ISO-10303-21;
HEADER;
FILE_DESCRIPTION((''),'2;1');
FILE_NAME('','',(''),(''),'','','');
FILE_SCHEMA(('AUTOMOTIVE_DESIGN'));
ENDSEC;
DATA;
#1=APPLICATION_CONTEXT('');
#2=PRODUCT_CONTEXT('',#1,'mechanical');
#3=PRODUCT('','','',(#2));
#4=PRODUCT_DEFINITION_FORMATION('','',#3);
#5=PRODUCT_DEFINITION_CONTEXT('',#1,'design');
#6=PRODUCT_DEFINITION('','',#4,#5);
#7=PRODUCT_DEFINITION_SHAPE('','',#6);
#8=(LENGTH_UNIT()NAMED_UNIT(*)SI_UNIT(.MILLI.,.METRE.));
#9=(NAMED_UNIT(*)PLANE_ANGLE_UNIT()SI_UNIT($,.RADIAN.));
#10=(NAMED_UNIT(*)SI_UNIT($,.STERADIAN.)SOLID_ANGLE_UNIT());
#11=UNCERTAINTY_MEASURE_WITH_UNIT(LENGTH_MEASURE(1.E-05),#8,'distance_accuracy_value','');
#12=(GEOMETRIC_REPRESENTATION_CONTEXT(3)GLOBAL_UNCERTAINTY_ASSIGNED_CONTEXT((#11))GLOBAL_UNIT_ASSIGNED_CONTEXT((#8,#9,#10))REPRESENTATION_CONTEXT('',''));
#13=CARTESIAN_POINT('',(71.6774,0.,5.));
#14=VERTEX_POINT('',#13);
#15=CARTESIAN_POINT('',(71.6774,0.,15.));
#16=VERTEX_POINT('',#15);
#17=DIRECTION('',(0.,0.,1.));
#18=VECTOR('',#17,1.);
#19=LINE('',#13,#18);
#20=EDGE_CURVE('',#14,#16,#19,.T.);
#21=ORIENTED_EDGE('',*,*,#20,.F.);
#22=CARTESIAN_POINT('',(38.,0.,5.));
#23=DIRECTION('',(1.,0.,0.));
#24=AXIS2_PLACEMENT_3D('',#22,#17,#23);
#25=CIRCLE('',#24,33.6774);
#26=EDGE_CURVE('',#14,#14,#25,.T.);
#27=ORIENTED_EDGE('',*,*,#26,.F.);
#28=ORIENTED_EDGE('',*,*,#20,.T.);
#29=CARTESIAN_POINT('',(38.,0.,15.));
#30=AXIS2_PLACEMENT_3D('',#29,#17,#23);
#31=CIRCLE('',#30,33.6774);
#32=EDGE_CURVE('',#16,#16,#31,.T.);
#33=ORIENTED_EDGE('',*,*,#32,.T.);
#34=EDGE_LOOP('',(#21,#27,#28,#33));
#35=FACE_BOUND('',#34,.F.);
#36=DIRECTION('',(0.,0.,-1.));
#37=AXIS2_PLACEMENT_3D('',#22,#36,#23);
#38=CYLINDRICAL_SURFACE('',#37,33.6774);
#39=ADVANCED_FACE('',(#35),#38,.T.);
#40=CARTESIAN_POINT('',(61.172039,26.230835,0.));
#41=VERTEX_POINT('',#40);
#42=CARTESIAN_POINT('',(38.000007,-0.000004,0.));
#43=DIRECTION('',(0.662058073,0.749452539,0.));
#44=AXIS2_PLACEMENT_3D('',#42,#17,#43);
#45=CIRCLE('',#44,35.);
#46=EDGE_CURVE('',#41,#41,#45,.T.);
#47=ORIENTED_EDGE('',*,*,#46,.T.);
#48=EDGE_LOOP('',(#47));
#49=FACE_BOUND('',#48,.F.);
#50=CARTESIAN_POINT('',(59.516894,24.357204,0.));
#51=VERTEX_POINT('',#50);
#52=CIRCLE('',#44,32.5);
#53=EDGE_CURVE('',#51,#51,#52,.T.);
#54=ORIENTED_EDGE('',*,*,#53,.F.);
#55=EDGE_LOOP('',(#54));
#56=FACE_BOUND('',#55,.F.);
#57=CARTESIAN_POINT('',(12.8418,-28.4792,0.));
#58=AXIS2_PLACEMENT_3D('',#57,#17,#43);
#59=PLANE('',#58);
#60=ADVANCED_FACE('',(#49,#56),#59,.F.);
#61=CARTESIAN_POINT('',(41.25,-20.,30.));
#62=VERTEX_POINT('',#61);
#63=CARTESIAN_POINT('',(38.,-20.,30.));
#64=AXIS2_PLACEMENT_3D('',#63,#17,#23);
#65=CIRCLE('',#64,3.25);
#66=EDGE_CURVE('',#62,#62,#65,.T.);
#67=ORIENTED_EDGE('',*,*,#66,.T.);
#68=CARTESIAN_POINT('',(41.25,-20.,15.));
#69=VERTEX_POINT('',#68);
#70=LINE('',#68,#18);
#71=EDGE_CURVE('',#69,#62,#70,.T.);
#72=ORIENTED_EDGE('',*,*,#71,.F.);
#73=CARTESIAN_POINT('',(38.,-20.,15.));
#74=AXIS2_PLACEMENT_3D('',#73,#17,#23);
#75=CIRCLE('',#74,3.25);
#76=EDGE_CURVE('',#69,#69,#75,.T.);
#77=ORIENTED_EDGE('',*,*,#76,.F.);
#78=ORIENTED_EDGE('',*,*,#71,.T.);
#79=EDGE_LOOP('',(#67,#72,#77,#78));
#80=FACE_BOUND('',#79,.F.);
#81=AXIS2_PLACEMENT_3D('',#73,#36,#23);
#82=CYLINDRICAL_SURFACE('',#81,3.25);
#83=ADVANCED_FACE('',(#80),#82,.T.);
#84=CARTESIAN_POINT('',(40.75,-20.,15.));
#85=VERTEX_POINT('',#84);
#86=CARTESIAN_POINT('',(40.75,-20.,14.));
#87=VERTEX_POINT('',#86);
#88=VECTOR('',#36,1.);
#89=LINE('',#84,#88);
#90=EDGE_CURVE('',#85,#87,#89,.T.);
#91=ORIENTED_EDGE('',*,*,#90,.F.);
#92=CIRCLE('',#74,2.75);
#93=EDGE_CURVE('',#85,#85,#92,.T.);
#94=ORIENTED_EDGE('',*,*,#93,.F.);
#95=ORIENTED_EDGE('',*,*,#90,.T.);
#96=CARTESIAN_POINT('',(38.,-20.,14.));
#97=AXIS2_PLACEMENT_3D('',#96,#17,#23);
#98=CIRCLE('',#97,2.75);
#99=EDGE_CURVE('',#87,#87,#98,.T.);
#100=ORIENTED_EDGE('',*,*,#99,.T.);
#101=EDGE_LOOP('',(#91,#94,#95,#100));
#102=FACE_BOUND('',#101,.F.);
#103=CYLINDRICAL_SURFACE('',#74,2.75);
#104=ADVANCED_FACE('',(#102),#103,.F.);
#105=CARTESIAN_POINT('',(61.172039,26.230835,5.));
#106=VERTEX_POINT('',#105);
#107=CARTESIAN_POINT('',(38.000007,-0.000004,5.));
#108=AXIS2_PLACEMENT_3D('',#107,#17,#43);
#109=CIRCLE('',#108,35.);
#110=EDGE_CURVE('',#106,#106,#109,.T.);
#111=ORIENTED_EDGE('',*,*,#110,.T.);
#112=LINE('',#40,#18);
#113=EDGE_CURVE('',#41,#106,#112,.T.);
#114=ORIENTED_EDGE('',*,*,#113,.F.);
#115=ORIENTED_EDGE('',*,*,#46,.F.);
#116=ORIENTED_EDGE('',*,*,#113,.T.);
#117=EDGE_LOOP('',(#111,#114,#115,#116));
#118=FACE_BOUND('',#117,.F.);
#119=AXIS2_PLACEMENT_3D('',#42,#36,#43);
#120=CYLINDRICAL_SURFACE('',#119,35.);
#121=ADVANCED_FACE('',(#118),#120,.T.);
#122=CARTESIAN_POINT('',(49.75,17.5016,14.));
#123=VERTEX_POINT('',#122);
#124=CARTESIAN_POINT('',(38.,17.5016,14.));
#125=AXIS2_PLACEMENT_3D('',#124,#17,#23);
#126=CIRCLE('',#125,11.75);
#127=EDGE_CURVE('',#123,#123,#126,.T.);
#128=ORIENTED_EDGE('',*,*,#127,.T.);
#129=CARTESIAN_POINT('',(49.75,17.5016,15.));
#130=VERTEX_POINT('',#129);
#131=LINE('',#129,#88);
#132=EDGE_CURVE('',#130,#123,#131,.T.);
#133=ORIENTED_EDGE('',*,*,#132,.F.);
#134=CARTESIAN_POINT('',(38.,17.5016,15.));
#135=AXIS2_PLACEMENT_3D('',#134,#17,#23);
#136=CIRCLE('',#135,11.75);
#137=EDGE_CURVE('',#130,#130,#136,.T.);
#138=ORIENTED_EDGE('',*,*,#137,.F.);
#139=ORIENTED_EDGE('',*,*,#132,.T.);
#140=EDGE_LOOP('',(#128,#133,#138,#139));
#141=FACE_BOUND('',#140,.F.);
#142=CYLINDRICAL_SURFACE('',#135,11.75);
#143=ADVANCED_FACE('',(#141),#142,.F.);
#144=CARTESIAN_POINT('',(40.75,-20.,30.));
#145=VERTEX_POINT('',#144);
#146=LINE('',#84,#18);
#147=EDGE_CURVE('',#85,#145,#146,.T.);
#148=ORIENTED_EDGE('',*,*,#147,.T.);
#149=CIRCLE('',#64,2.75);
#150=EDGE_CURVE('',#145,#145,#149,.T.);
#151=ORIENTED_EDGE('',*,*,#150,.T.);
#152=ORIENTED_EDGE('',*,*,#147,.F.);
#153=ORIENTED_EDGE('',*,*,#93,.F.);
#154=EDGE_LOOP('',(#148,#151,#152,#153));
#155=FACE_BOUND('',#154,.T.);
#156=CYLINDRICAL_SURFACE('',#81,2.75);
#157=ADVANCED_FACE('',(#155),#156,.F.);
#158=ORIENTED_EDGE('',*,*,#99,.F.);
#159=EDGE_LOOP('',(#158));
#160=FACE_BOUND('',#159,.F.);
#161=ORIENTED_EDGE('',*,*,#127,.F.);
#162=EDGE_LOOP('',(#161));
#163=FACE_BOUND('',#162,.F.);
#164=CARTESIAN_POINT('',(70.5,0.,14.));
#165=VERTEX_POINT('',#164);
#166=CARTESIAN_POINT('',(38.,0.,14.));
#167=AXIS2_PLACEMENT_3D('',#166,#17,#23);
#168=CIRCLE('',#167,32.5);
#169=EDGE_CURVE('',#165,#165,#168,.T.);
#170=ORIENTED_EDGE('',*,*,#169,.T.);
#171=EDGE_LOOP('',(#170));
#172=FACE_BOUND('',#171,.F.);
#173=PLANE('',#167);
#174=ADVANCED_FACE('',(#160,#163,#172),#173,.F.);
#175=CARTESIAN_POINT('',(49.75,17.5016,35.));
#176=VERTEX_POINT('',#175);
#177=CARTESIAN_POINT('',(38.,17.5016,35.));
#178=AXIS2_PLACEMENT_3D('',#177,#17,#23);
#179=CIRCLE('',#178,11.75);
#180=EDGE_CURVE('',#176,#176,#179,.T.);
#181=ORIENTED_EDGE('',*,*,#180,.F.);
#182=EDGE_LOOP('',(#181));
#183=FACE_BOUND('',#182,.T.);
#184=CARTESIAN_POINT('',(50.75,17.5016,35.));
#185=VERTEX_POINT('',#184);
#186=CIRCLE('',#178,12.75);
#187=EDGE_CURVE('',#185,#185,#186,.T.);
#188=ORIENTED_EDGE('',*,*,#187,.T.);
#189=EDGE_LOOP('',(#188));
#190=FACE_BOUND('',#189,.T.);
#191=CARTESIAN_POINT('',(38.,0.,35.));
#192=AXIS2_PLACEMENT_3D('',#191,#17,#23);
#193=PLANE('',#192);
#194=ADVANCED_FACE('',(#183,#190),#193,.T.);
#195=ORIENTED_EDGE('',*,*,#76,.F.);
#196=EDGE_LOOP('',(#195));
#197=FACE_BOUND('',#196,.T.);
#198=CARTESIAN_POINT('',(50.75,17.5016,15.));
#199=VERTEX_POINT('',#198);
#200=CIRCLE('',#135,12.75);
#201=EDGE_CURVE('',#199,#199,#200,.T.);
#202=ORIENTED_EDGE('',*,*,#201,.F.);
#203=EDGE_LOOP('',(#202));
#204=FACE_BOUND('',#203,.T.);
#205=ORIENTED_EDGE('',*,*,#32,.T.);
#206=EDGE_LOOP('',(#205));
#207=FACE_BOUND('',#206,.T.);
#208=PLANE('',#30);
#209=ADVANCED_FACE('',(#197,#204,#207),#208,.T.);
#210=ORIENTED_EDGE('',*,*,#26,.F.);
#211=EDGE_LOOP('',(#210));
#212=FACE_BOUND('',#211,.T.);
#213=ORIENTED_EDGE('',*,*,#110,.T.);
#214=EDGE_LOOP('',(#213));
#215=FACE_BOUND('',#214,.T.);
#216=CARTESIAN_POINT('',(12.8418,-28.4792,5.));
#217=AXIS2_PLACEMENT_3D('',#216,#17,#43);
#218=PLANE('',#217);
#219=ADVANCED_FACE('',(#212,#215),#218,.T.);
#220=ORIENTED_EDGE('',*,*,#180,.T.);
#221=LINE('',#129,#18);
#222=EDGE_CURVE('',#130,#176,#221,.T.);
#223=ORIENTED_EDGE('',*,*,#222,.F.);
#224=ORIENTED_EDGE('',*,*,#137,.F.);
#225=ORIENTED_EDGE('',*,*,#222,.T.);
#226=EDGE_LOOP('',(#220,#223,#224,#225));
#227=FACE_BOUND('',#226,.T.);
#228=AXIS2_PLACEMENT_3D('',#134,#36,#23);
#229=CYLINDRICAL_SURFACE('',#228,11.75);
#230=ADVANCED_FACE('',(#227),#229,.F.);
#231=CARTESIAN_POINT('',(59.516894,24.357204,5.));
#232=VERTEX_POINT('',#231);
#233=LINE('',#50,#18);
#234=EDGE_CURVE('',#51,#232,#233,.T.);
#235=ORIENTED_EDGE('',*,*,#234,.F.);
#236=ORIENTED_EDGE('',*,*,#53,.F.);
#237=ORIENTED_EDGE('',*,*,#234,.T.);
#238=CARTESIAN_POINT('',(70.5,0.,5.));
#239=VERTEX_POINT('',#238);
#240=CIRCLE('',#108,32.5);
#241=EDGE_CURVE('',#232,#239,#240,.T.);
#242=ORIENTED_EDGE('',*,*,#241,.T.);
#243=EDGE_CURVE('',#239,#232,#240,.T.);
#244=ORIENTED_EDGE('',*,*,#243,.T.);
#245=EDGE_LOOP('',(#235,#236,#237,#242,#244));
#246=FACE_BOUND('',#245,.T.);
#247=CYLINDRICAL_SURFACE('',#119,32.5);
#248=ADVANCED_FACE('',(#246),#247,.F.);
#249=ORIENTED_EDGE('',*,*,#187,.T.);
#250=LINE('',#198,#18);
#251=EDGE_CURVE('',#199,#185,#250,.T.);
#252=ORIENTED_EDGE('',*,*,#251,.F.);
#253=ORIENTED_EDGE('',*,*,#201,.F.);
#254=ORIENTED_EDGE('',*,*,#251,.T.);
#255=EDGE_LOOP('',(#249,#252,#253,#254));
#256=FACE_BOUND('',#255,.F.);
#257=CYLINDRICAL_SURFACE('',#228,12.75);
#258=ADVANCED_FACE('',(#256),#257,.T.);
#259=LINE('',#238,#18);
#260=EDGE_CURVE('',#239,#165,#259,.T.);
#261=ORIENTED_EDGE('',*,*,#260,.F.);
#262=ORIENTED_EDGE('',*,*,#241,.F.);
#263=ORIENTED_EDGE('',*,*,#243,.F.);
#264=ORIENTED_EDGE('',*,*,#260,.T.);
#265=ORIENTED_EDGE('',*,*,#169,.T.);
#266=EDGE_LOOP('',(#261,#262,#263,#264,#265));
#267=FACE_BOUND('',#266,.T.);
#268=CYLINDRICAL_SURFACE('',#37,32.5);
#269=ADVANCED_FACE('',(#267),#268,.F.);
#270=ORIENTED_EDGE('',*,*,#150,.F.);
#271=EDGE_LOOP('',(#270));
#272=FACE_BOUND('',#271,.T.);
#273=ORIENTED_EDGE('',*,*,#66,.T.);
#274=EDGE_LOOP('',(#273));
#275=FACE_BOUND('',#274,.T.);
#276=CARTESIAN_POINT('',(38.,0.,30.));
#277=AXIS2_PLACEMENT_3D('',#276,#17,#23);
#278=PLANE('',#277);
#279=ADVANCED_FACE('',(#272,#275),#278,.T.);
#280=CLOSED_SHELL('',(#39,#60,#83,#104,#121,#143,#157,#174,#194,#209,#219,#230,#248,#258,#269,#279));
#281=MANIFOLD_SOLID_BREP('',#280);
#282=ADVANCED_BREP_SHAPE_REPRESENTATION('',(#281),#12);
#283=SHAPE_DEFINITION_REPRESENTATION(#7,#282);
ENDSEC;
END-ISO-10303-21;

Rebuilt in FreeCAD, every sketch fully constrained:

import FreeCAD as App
import Part
import Sketcher
from FreeCAD import Vector
Q = App.Units.Quantity

doc = App.newDocument("Part")
body = doc.addObject("PartDesign::Body", "Body")

sketch1 = doc.addObject("Sketcher::SketchObject", "Sketch")
body.addObject(sketch1)
sketch1.AttachmentSupport = (doc.XY_Plane, [""])
sketch1.MapMode = "FlatFace"
sketch1.addGeometry([
    Part.Circle(Vector(38, 0, 0), Vector(0, 0, 1), 35),
    Part.Circle(Vector(38, 0, 0), Vector(0, 0, 1), 32),
], False)
sketch1.addConstraint([
    Sketcher.Constraint("Coincident", 1, 3, 0, 3),
    Sketcher.Constraint("PointOnObject", 0, 3, -1),
    Sketcher.Constraint("Diameter", 0, Q("70 mm")),
    Sketcher.Constraint("Diameter", 1, Q("65 mm")),
    Sketcher.Constraint("DistanceX", -1, 1, 0, 3, Q("38 mm")),
])
pad1 = doc.addObject("PartDesign::Pad", "Pad")
body.addObject(pad1)
pad1.Profile = sketch1
pad1.Length = 5

sketch2 = doc.addObject("Sketcher::SketchObject", "Sketch001")
body.addObject(sketch2)
sketch2.AttachmentSupport = (doc.XY_Plane, [""])
sketch2.MapMode = "FlatFace"
sketch2.AttachmentOffset = App.Placement(Vector(0, 0, 5), App.Rotation())
sketch2.addGeometry([
    Part.Circle(Vector(38, 0, 0), Vector(0, 0, 1), 34),
    Part.Circle(Vector(38, 0, 0), Vector(0, 0, 1), 32),
], False)
sketch2.addConstraint([
    Sketcher.Constraint("Coincident", 1, 3, 0, 3),
    Sketcher.Constraint("PointOnObject", 0, 3, -1),
    Sketcher.Constraint("Diameter", 1, Q("65 mm")),
    Sketcher.Constraint("DistanceX", -1, 1, 0, 3, Q("38 mm")),
    Sketcher.Constraint("Diameter", 0, Q("67.3548 mm")),
])
pad2 = doc.addObject("PartDesign::Pad", "Pad001")
body.addObject(pad2)
pad2.Profile = sketch2
pad2.Length = 10

sketch3 = doc.addObject("Sketcher::SketchObject", "Sketch002")
body.addObject(sketch3)
sketch3.AttachmentSupport = (doc.XY_Plane, [""])
sketch3.MapMode = "FlatFace"
sketch3.AttachmentOffset = App.Placement(Vector(0, 0, 15), App.Rotation())
sketch3.addGeometry(Part.Circle(Vector(38, 0, 0), Vector(0, 0, 1), 32), False)
sketch3.addConstraint([
    Sketcher.Constraint("PointOnObject", 0, 3, -1),
    Sketcher.Constraint("Diameter", 0, Q("65 mm")),
    Sketcher.Constraint("DistanceX", -1, 1, 0, 3, Q("38 mm")),
])
pad3 = doc.addObject("PartDesign::Pad", "Pad002")
body.addObject(pad3)
pad3.Profile = sketch3
pad3.Length = 1
pad3.Reversed = True

sketch4 = doc.addObject("Sketcher::SketchObject", "Sketch003")
body.addObject(sketch4)
sketch4.AttachmentSupport = (doc.XY_Plane, [""])
sketch4.MapMode = "FlatFace"
sketch4.AttachmentOffset = App.Placement(Vector(0, 0, 15), App.Rotation())
sketch4.addGeometry([
    Part.Circle(Vector(38, 18, 0), Vector(0, 0, 1), 13),
    Part.Circle(Vector(38, 18, 0), Vector(0, 0, 1), 12),
], False)
sketch4.addConstraint([
    Sketcher.Constraint("Coincident", 1, 3, 0, 3),
    Sketcher.Constraint("Diameter", 0, Q("25.5 mm")),
    Sketcher.Constraint("Diameter", 1, Q("23.5 mm")),
    Sketcher.Constraint("DistanceX", -1, 1, 0, 3, Q("38 mm")),
    Sketcher.Constraint("DistanceY", -1, 1, 0, 3, Q("17.5016 mm")),
])
pad4 = doc.addObject("PartDesign::Pad", "Pad003")
body.addObject(pad4)
pad4.Profile = sketch4
pad4.Length = 20

sketch5 = doc.addObject("Sketcher::SketchObject", "Sketch004")
body.addObject(sketch5)
sketch5.AttachmentSupport = (doc.XY_Plane, [""])
sketch5.MapMode = "FlatFace"
sketch5.AttachmentOffset = App.Placement(Vector(0, 0, 15), App.Rotation())
sketch5.addGeometry([
    Part.Circle(Vector(38, -20, 0), Vector(0, 0, 1), 3.2),
    Part.Circle(Vector(38, -20, 0), Vector(0, 0, 1), 2.8),
], False)
sketch5.addConstraint([
    Sketcher.Constraint("Coincident", 1, 3, 0, 3),
    Sketcher.Constraint("Diameter", 0, Q("6.5 mm")),
    Sketcher.Constraint("DistanceY", 0, 3, -1, 1, Q("20 mm")),
    Sketcher.Constraint("Diameter", 1, Q("5.5 mm")),
    Sketcher.Constraint("DistanceX", -1, 1, 0, 3, Q("38 mm")),
])
pad5 = doc.addObject("PartDesign::Pad", "Pad004")
body.addObject(pad5)
pad5.Profile = sketch5
pad5.Length = 15

sketch6 = doc.addObject("Sketcher::SketchObject", "Sketch005")
body.addObject(sketch6)
sketch6.AttachmentSupport = (doc.XY_Plane, [""])
sketch6.MapMode = "FlatFace"
sketch6.AttachmentOffset = App.Placement(Vector(0, 0, 15), App.Rotation())
sketch6.addGeometry([
    Part.Circle(Vector(38, -20, 0), Vector(0, 0, 1), 2.8),
    Part.Circle(Vector(38, 17.5, 0), Vector(0, 0, 1), 11.8),
], False)
sketch6.addConstraint([
    Sketcher.Constraint("Vertical", 0, 3, 1, 3),
    Sketcher.Constraint("Diameter", 0, Q("5.5 mm")),
    Sketcher.Constraint("Diameter", 1, Q("23.5 mm")),
    Sketcher.Constraint("DistanceX", -1, 1, 0, 3, Q("38 mm")),
    Sketcher.Constraint("DistanceY", 0, 3, -1, 1, Q("20 mm")),
    Sketcher.Constraint("DistanceY", -1, 1, 1, 3, Q("17.5016 mm")),
])
pocket1 = doc.addObject("PartDesign::Pocket", "Pocket")
body.addObject(pocket1)
pocket1.Profile = sketch6
pocket1.Length = 15

doc.recompute()
